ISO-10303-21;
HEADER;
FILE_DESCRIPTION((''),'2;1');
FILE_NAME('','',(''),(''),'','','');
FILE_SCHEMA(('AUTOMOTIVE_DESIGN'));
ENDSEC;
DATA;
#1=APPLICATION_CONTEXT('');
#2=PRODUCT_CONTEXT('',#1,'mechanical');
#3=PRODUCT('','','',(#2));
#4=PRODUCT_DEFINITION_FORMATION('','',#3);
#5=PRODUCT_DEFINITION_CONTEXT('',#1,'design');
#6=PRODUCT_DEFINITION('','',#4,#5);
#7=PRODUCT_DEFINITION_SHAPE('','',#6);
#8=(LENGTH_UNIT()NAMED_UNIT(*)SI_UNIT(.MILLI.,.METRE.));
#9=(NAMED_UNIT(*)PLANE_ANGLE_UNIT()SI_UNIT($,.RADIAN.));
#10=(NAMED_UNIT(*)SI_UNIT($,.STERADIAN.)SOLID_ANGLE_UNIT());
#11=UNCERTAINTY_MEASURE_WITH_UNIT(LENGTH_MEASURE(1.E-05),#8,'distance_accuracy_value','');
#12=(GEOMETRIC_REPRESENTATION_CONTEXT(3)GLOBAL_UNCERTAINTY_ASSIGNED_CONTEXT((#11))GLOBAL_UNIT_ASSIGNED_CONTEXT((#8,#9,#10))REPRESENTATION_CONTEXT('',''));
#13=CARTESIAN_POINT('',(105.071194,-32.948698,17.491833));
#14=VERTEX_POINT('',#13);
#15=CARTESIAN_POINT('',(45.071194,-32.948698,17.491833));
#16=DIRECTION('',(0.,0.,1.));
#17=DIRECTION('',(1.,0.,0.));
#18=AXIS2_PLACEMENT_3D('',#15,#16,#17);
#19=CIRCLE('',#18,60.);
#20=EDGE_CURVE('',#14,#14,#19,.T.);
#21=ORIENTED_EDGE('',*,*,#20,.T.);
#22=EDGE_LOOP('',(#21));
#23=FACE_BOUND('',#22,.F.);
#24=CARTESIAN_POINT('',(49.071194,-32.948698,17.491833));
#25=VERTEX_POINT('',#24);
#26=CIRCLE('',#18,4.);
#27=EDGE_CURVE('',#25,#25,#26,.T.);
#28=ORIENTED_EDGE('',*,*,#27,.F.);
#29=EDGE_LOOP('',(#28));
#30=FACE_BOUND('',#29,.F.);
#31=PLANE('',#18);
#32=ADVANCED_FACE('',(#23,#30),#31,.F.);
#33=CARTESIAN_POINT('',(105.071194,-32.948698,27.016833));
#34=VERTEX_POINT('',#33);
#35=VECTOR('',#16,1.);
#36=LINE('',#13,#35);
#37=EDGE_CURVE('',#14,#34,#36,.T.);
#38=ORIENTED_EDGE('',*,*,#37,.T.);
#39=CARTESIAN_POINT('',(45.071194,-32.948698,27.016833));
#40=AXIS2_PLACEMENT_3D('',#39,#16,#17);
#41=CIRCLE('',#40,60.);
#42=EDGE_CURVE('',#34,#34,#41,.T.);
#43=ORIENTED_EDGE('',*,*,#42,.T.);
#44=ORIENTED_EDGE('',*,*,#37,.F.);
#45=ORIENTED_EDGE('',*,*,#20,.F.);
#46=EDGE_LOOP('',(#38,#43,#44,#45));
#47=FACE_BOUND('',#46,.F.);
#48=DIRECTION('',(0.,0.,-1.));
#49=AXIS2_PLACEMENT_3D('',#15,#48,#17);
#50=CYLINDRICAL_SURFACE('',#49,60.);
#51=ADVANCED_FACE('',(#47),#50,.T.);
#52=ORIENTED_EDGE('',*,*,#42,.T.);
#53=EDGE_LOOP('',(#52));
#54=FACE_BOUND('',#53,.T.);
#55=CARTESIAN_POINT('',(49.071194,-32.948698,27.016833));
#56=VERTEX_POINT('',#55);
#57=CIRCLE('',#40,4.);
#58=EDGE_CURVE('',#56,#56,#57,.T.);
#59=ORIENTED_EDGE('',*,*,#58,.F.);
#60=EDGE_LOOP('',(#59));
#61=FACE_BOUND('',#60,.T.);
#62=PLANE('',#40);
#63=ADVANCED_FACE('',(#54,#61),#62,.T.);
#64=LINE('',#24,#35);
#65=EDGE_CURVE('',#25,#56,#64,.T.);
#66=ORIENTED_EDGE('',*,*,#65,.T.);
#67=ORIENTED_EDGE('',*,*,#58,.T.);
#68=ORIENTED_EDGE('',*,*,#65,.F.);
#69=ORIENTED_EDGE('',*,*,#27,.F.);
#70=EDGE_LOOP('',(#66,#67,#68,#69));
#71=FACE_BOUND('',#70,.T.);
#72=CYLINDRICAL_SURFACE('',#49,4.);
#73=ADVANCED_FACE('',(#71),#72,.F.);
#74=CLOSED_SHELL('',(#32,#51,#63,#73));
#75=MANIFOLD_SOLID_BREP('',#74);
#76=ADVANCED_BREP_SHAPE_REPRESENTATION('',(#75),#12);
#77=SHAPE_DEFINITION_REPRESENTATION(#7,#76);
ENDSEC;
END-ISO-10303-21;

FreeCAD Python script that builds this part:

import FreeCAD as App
import Part
import Sketcher
from FreeCAD import Vector
Q = App.Units.Quantity

doc = App.newDocument("Part")
body = doc.addObject("PartDesign::Body", "Body")

# Sketch on XY plane
sketch1 = body.newObject("Sketcher::SketchObject", "Sketch")
sketch1.AttachmentSupport = (doc.getObject("XY_Plane"), [""])
sketch1.MapMode = "FlatFace"
sketch1.addGeometry([
    Part.Circle(Vector(0, 0, 0), Vector(0, 0, 1), 60),
    Part.Circle(Vector(0, 0, 0), Vector(0, 0, 1), 4),
], False)
sketch1.addConstraint([
    Sketcher.Constraint("Coincident", 0, 3, -1, 1),
    Sketcher.Constraint("Coincident", 1, 3, -1, 1),
    Sketcher.Constraint("Diameter", 0, Q("120 mm")),
    Sketcher.Constraint("Diameter", 1, Q("8 mm")),
])
pad1 = body.newObject("PartDesign::Pad", "Pad")
pad1.Profile = sketch1
pad1.Length = 9.525
body2 = doc.addObject("PartDesign::Body", "Body001")
doc.recompute()

body.Placement = App.Placement(Vector(45.071194, -32.948698, 17.491833), App.Rotation(Vector(0, 0, 1), 0))
boolean = body2.newObject("PartDesign::Boolean", "Boolean")
boolean.Type = "Fuse"
boolean.addObjects([body])

doc.recompute()
